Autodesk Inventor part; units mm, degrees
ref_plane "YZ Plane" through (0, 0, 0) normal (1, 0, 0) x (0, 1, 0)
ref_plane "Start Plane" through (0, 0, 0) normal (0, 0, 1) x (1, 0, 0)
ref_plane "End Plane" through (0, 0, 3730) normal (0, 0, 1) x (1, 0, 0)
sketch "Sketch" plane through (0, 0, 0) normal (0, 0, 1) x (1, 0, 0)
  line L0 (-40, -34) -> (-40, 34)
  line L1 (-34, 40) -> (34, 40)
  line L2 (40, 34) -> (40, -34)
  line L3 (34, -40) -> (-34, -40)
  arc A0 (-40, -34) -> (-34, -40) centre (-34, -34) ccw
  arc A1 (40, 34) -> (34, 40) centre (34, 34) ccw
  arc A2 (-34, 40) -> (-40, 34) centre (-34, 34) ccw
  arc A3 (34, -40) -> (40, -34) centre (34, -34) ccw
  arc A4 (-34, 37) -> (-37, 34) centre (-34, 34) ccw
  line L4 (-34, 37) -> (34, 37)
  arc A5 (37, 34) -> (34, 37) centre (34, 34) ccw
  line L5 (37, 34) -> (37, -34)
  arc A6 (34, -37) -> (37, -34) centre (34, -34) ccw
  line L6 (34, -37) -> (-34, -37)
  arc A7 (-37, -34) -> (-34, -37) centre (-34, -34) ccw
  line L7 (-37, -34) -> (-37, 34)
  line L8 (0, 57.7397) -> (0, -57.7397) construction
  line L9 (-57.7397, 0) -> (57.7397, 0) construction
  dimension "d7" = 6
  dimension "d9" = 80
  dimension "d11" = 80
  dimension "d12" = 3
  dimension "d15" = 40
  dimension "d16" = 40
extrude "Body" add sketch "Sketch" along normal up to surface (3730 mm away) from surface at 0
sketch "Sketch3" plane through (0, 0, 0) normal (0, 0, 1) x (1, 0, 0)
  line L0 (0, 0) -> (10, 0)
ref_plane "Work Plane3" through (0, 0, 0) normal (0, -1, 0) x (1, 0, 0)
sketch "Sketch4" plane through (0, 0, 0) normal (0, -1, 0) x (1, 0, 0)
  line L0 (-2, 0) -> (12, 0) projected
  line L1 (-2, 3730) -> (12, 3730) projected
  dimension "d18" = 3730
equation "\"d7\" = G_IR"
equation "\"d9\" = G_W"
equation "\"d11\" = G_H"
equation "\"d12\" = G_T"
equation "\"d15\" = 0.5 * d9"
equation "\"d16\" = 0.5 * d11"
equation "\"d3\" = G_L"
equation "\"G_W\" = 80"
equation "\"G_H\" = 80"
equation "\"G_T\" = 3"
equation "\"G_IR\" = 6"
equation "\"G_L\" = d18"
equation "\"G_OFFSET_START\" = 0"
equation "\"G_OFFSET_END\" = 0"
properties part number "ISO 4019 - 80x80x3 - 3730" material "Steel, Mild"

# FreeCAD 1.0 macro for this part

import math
import FreeCAD as App
import Part
import Sketcher

doc = App.newDocument("Part")
body = doc.addObject("PartDesign::Body", "Body")

sketch1 = body.newObject("Sketcher::SketchObject", "Sketch")
sketch1.AttachmentSupport = (doc.getObject("XY_Plane"), [""])
sketch1.MapMode = "FlatFace"
sketch1.addGeometry(Part.LineSegment(App.Vector(-40, 34, 0), App.Vector(-40, -34, 0)), False)
sketch1.addGeometry(Part.ArcOfCircle(Part.Circle(App.Vector(-34, -34, 0), App.Vector(0, 0, 1), 6), math.radians(180), math.radians(270)), False)
sketch1.addGeometry(Part.LineSegment(App.Vector(-34, -40, 0), App.Vector(34, -40, 0)), False)
sketch1.addGeometry(Part.ArcOfCircle(Part.Circle(App.Vector(34, -34, 0), App.Vector(0, 0, 1), 6), math.radians(-90), math.radians(0)), False)
sketch1.addGeometry(Part.LineSegment(App.Vector(40, -34, 0), App.Vector(40, 34, 0)), False)
sketch1.addGeometry(Part.ArcOfCircle(Part.Circle(App.Vector(34, 34, 0), App.Vector(0, 0, 1), 6), math.radians(0), math.radians(90)), False)
sketch1.addGeometry(Part.LineSegment(App.Vector(34, 40, 0), App.Vector(-34, 40, 0)), False)
sketch1.addGeometry(Part.ArcOfCircle(Part.Circle(App.Vector(-34, 34, 0), App.Vector(0, 0, 1), 6), math.radians(90), math.radians(180)), False)
sketch1.addGeometry(Part.ArcOfCircle(Part.Circle(App.Vector(-34, 34, 0), App.Vector(0, 0, 1), 3), math.radians(90), math.radians(180)), False)
sketch1.addGeometry(Part.LineSegment(App.Vector(-34, 37, 0), App.Vector(34, 37, 0)), False)
sketch1.addGeometry(Part.ArcOfCircle(Part.Circle(App.Vector(34, 34, 0), App.Vector(0, 0, 1), 3), math.radians(0), math.radians(90)), False)
sketch1.addGeometry(Part.LineSegment(App.Vector(37, 34, 0), App.Vector(37, -34, 0)), False)
sketch1.addGeometry(Part.ArcOfCircle(Part.Circle(App.Vector(34, -34, 0), App.Vector(0, 0, 1), 3), math.radians(-90), math.radians(0)), False)
sketch1.addGeometry(Part.LineSegment(App.Vector(34, -37, 0), App.Vector(-34, -37, 0)), False)
sketch1.addGeometry(Part.ArcOfCircle(Part.Circle(App.Vector(-34, -34, 0), App.Vector(0, 0, 1), 3), math.radians(180), math.radians(270)), False)
sketch1.addGeometry(Part.LineSegment(App.Vector(-37, -34, 0), App.Vector(-37, 34, 0)), False)
sketch1.addConstraint(Sketcher.Constraint("Tangent", 0, 2, 1, 1))
sketch1.addConstraint(Sketcher.Constraint("Tangent", 1, 2, 2, 1))
sketch1.addConstraint(Sketcher.Constraint("Tangent", 2, 2, 3, 1))
sketch1.addConstraint(Sketcher.Constraint("Tangent", 3, 2, 4, 1))
sketch1.addConstraint(Sketcher.Constraint("Tangent", 4, 2, 5, 1))
sketch1.addConstraint(Sketcher.Constraint("Tangent", 5, 2, 6, 1))
sketch1.addConstraint(Sketcher.Constraint("Tangent", 6, 2, 7, 1))
sketch1.addConstraint(Sketcher.Constraint("Tangent", 7, 2, 0, 1))
sketch1.addConstraint(Sketcher.Constraint("Tangent", 8, 1, 9, 1))
sketch1.addConstraint(Sketcher.Constraint("Tangent", 9, 2, 10, 2))
sketch1.addConstraint(Sketcher.Constraint("Tangent", 10, 1, 11, 1))
sketch1.addConstraint(Sketcher.Constraint("Tangent", 11, 2, 12, 2))
sketch1.addConstraint(Sketcher.Constraint("Tangent", 12, 1, 13, 1))
sketch1.addConstraint(Sketcher.Constraint("Tangent", 13, 2, 14, 2))
sketch1.addConstraint(Sketcher.Constraint("Tangent", 14, 1, 15, 1))
sketch1.addConstraint(Sketcher.Constraint("Tangent", 15, 2, 8, 2))
sketch1.addConstraint(Sketcher.Constraint("Vertical", 0))
sketch1.addConstraint(Sketcher.Constraint("Horizontal", 2))
sketch1.addConstraint(Sketcher.Constraint("Vertical", 4))
sketch1.addConstraint(Sketcher.Constraint("Horizontal", 6))
sketch1.addConstraint(Sketcher.Constraint("Horizontal", 9))
sketch1.addConstraint(Sketcher.Constraint("Vertical", 11))
sketch1.addConstraint(Sketcher.Constraint("Horizontal", 13))
sketch1.addConstraint(Sketcher.Constraint("Vertical", 15))
sketch1.addConstraint(Sketcher.Constraint("Coincident", 8, 3, 7, 3))
sketch1.addConstraint(Sketcher.Constraint("Coincident", 10, 3, 5, 3))
sketch1.addConstraint(Sketcher.Constraint("Coincident", 12, 3, 3, 3))
sketch1.addConstraint(Sketcher.Constraint("Equal", 1, 3))
sketch1.addConstraint(Sketcher.Constraint("Equal", 3, 5))
sketch1.addConstraint(Sketcher.Constraint("Equal", 5, 7))
sketch1.addConstraint(Sketcher.Constraint("Equal", 12, 14))
sketch1.addConstraint(Sketcher.Constraint("Symmetric", 1, 3, 5, 3, -1, 1))
sketch1.addConstraint(Sketcher.Constraint("Equal", 13, 0))
sketch1.addConstraint(Sketcher.Constraint("Radius", 1, 6.0))
sketch1.addConstraint(Sketcher.Constraint("Radius", 8, 3.0))
sketch1.addConstraint(Sketcher.Constraint("DistanceX", 0, 2, -1, 1, 40.0))
pad1 = body.newObject("PartDesign::Pad", "Pad")
pad1.Profile = sketch1
pad1.Length = 3730

doc.recompute()
